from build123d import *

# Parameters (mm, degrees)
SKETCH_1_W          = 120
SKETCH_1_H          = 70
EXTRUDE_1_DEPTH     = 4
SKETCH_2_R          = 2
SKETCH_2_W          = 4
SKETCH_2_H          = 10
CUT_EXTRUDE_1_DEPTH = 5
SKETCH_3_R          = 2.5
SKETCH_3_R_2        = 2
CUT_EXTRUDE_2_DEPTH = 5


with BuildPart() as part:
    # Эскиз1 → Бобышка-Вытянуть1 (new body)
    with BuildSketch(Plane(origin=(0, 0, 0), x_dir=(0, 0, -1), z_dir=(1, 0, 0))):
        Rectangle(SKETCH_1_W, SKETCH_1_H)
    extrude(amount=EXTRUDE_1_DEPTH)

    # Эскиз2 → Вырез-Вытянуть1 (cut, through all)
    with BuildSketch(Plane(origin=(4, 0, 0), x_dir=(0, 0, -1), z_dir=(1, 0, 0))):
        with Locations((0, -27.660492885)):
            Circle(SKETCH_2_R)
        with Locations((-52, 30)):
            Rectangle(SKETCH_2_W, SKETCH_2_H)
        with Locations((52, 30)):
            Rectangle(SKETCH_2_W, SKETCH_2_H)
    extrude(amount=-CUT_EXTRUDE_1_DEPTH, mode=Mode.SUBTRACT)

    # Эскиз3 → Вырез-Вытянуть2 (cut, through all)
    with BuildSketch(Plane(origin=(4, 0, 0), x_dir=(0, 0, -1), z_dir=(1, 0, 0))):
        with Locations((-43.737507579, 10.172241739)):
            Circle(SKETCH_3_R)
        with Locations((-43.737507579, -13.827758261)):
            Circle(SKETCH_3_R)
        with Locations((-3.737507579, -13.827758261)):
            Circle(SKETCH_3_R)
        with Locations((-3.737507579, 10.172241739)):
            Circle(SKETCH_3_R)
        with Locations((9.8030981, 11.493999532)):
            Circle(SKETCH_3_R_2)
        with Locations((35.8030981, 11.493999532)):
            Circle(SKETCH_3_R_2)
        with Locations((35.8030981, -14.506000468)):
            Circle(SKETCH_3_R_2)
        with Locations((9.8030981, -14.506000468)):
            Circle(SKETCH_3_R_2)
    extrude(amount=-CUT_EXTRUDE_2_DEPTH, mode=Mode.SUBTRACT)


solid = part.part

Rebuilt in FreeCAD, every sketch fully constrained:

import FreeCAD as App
import Part
import Sketcher

doc = App.newDocument("Part")
body = doc.addObject("PartDesign::Body", "Body")

sketch1 = doc.addObject("Sketcher::SketchObject", "Sketch")
body.addObject(sketch1)
sketch1.AttachmentSupport = (doc.YZ_Plane, [""])
sketch1.MapMode = "FlatFace"
sketch1.addGeometry(Part.LineSegment(App.Vector(35, 60, 0), App.Vector(-35, 60, 0)), False)
sketch1.addGeometry(Part.LineSegment(App.Vector(-35, 60, 0), App.Vector(-35, -60, 0)), False)
sketch1.addGeometry(Part.LineSegment(App.Vector(-35, -60, 0), App.Vector(35, -60, 0)), False)
sketch1.addGeometry(Part.LineSegment(App.Vector(35, -60, 0), App.Vector(35, 60, 0)), False)
sketch1.addConstraint(Sketcher.Constraint("Coincident", 0, 2, 1, 1))
sketch1.addConstraint(Sketcher.Constraint("Coincident", 1, 2, 2, 1))
sketch1.addConstraint(Sketcher.Constraint("Coincident", 2, 2, 3, 1))
sketch1.addConstraint(Sketcher.Constraint("Coincident", 3, 2, 0, 1))
sketch1.addConstraint(Sketcher.Constraint("Horizontal", 0))
sketch1.addConstraint(Sketcher.Constraint("Vertical", 1))
sketch1.addConstraint(Sketcher.Constraint("Horizontal", 2))
sketch1.addConstraint(Sketcher.Constraint("Vertical", 3))
sketch1.addConstraint(Sketcher.Constraint("Symmetric", 0, 2, 2, 2, -1, 1))
sketch1.addConstraint(Sketcher.Constraint("DistanceX", 0, 2, 0, 1, 70.0))
sketch1.addConstraint(Sketcher.Constraint("DistanceY", 1, 2, 1, 1, 120.0))
pad1 = doc.addObject("PartDesign::Pad", "Pad")
body.addObject(pad1)
pad1.Profile = sketch1
pad1.Length = 4

sketch2 = doc.addObject("Sketcher::SketchObject", "Sketch001")
body.addObject(sketch2)
sketch2.AttachmentSupport = (doc.YZ_Plane, [""])
sketch2.MapMode = "FlatFace"
sketch2.AttachmentOffset = App.Placement(App.Vector(0, 0, 4), App.Rotation())
sketch2.addGeometry(Part.Circle(App.Vector(-27.660493, 0, 0), App.Vector(0, 0, 1), 2), False)
sketch2.addGeometry(Part.LineSegment(App.Vector(35, 54, 0), App.Vector(25, 54, 0)), False)
sketch2.addGeometry(Part.LineSegment(App.Vector(25, 54, 0), App.Vector(25, 50, 0)), False)
sketch2.addGeometry(Part.LineSegment(App.Vector(25, 50, 0), App.Vector(35, 50, 0)), False)
sketch2.addGeometry(Part.LineSegment(App.Vector(35, 50, 0), App.Vector(35, 54, 0)), False)
sketch2.addGeometry(Part.LineSegment(App.Vector(35, -50, 0), App.Vector(25, -50, 0)), False)
sketch2.addGeometry(Part.LineSegment(App.Vector(25, -50, 0), App.Vector(25, -54, 0)), False)
sketch2.addGeometry(Part.LineSegment(App.Vector(25, -54, 0), App.Vector(35, -54, 0)), False)
sketch2.addGeometry(Part.LineSegment(App.Vector(35, -54, 0), App.Vector(35, -50, 0)), False)
sketch2.addConstraint(Sketcher.Constraint("Coincident", 1, 2, 2, 1))
sketch2.addConstraint(Sketcher.Constraint("Coincident", 2, 2, 3, 1))
sketch2.addConstraint(Sketcher.Constraint("Coincident", 3, 2, 4, 1))
sketch2.addConstraint(Sketcher.Constraint("Coincident", 4, 2, 1, 1))
sketch2.addConstraint(Sketcher.Constraint("Coincident", 5, 2, 6, 1))
sketch2.addConstraint(Sketcher.Constraint("Coincident", 6, 2, 7, 1))
sketch2.addConstraint(Sketcher.Constraint("Coincident", 7, 2, 8, 1))
sketch2.addConstraint(Sketcher.Constraint("Coincident", 8, 2, 5, 1))
sketch2.addConstraint(Sketcher.Constraint("Horizontal", 1))
sketch2.addConstraint(Sketcher.Constraint("Vertical", 2))
sketch2.addConstraint(Sketcher.Constraint("Horizontal", 3))
sketch2.addConstraint(Sketcher.Constraint("Vertical", 4))
sketch2.addConstraint(Sketcher.Constraint("Horizontal", 5))
sketch2.addConstraint(Sketcher.Constraint("Vertical", 6))
sketch2.addConstraint(Sketcher.Constraint("Horizontal", 7))
sketch2.addConstraint(Sketcher.Constraint("Vertical", 8))
sketch2.addConstraint(Sketcher.Constraint("Symmetric", 2, 2, 5, 2, -1))
sketch2.addConstraint(Sketcher.Constraint("Symmetric", 4, 2, 7, 2, -1))
sketch2.addConstraint(Sketcher.Constraint("PointOnObject", 0, 3, -1))
sketch2.addConstraint(Sketcher.Constraint("Diameter", 0, 4.0))
sketch2.addConstraint(Sketcher.Constraint("DistanceX", 1, 2, 1, 1, 10.0))
sketch2.addConstraint(Sketcher.Constraint("DistanceY", 2, 2, 2, 1, 4.0))
sketch2.addConstraint(Sketcher.Constraint("DistanceX", -1, 1, 1, 2, 25.0))
sketch2.addConstraint(Sketcher.Constraint("DistanceY", -1, 1, 1, 2, 54.0))
sketch2.addConstraint(Sketcher.Constraint("DistanceX", 0, 3, -1, 1, 27.660493))
pocket1 = doc.addObject("PartDesign::Pocket", "Pocket")
body.addObject(pocket1)
pocket1.Profile = sketch2
pocket1.Type = "ThroughAll"

sketch3 = doc.addObject("Sketcher::SketchObject", "Sketch002")
body.addObject(sketch3)
sketch3.AttachmentSupport = (doc.YZ_Plane, [""])
sketch3.MapMode = "FlatFace"
sketch3.AttachmentOffset = App.Placement(App.Vector(0, 0, 4), App.Rotation())
sketch3.addGeometry(Part.Circle(App.Vector(10.172242, 43.737508, 0), App.Vector(0, 0, 1), 2.5), False)
sketch3.addGeometry(Part.Circle(App.Vector(-13.827758, 43.737508, 0), App.Vector(0, 0, 1), 2.5), False)
sketch3.addGeometry(Part.Circle(App.Vector(-13.827758, 3.737508, 0), App.Vector(0, 0, 1), 2.5), False)
sketch3.addGeometry(Part.Circle(App.Vector(10.172242, 3.737508, 0), App.Vector(0, 0, 1), 2.5), False)
sketch3.addGeometry(Part.Circle(App.Vector(11.494, -9.803098, 0), App.Vector(0, 0, 1), 2), False)
sketch3.addGeometry(Part.Circle(App.Vector(11.494, -35.803098, 0), App.Vector(0, 0, 1), 2), False)
sketch3.addGeometry(Part.Circle(App.Vector(-14.506, -35.803098, 0), App.Vector(0, 0, 1), 2), False)
sketch3.addGeometry(Part.Circle(App.Vector(-14.506, -9.803098, 0), App.Vector(0, 0, 1), 2), False)
sketch3.addConstraint(Sketcher.Constraint("Equal", 0, 1))
sketch3.addConstraint(Sketcher.Constraint("Equal", 1, 2))
sketch3.addConstraint(Sketcher.Constraint("Equal", 2, 3))
sketch3.addConstraint(Sketcher.Constraint("Equal", 4, 5))
sketch3.addConstraint(Sketcher.Constraint("Equal", 5, 6))
sketch3.addConstraint(Sketcher.Constraint("Equal", 6, 7))
sketch3.addConstraint(Sketcher.Constraint("Horizontal", 0, 3, 1, 3))
sketch3.addConstraint(Sketcher.Constraint("Horizontal", 2, 3, 3, 3))
sketch3.addConstraint(Sketcher.Constraint("Horizontal", 5, 3, 6, 3))
sketch3.addConstraint(Sketcher.Constraint("Horizontal", 4, 3, 7, 3))
sketch3.addConstraint(Sketcher.Constraint("Vertical", 1, 3, 2, 3))
sketch3.addConstraint(Sketcher.Constraint("Vertical", 0, 3, 3, 3))
sketch3.addConstraint(Sketcher.Constraint("Vertical", 4, 3, 5, 3))
sketch3.addConstraint(Sketcher.Constraint("Vertical", 6, 3, 7, 3))
sketch3.addConstraint(Sketcher.Constraint("Diameter", 0, 5.0))
sketch3.addConstraint(Sketcher.Constraint("Diameter", 4, 4.0))
sketch3.addConstraint(Sketcher.Constraint("DistanceX", 1, 3, 0, 3, 24.0))
sketch3.addConstraint(Sketcher.Constraint("DistanceY", 2, 3, 1, 3, 40.0))
sketch3.addConstraint(Sketcher.Constraint("DistanceY", 5, 3, 4, 3, 26.0))
sketch3.addConstraint(Sketcher.Constraint("DistanceX", 6, 3, 5, 3, 26.0))
sketch3.addConstraint(Sketcher.Constraint("DistanceX", -1, 1, 4, 3, 11.494))
sketch3.addConstraint(Sketcher.Constraint("DistanceY", 4, 3, -1, 1, 9.803098))
sketch3.addConstraint(Sketcher.Constraint("DistanceX", -1, 1, 0, 3, 10.172242))
sketch3.addConstraint(Sketcher.Constraint("DistanceY", -1, 1, 0, 3, 43.737508))
pocket2 = doc.addObject("PartDesign::Pocket", "Pocket001")
body.addObject(pocket2)
pocket2.Profile = sketch3
pocket2.Type = "ThroughAll"

doc.recompute()
